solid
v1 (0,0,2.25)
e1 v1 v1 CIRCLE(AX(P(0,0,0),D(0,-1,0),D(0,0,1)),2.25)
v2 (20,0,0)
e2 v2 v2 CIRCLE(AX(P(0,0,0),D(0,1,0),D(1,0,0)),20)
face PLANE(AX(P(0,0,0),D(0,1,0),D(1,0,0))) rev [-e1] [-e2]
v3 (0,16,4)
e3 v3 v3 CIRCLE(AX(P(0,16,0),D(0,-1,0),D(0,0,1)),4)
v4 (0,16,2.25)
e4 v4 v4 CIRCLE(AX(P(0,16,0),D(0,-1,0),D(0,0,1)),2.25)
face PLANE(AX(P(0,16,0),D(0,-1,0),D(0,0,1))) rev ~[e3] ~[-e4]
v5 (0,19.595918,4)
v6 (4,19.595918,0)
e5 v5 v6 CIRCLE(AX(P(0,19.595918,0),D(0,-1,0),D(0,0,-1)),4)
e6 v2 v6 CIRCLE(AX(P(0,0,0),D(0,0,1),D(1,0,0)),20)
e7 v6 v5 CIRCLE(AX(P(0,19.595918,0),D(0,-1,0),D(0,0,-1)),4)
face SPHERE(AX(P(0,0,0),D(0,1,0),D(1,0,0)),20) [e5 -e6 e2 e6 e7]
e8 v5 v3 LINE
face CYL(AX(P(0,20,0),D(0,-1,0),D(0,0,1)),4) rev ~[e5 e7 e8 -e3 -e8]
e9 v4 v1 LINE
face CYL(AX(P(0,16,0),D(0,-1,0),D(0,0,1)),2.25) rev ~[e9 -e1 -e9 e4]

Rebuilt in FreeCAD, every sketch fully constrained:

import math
import FreeCAD as App
import Part
import Sketcher
Q = App.Units.Quantity

doc = App.newDocument("Part")
params = doc.addObject("Spreadsheet::Sheet", "Params")
for row, (alias, value) in enumerate([
    ("sketch1_radius", "20 mm"),
    ("revolution_angle", "360 deg"),
    ("sketch2_diameter", "4.5 mm"),
    ("hole_diameter", "4.5 mm"),
    ("hole_cbore_diameter", "8 mm"),
    ("hole_cbore_depth", "4 mm"),
], start=1):
    params.set(f"A{row}", alias)
    params.set(f"B{row}", "=" + value)
    params.setAlias(f"B{row}", alias)

body = doc.addObject("PartDesign::Body", "Body")

# Sketch on XY plane
sketch1 = body.newObject("Sketcher::SketchObject", "Sketch")
sketch1.AttachmentSupport = (doc.getObject("XY_Plane"), [""])
sketch1.MapMode = "FlatFace"
sketch1.addGeometry([
    Part.LineSegment(App.Vector(0, 20, 0), App.Vector(0, 0, 0)),
    Part.LineSegment(App.Vector(0, 0, 0), App.Vector(20, 0, 0)),
    Part.ArcOfCircle(Part.Circle(App.Vector(0, 0, 0), App.Vector(0, 0, 1), 20), math.radians(0), math.radians(90)),
], False)
sketch1.addConstraint([
    Sketcher.Constraint("Coincident", 0, 2, 1, 1),
    Sketcher.Constraint("Coincident", 1, 2, 2, 1),
    Sketcher.Constraint("Coincident", 2, 2, 0, 1),
    Sketcher.Constraint("Vertical", 0),
    Sketcher.Constraint("Horizontal", 1),
    Sketcher.Constraint("Coincident", 2, 3, -1, 1),
    Sketcher.Constraint("Coincident", 0, 2, -1, 1),
    Sketcher.Constraint("Radius", 2, Q("20 mm")),
])
sketch1.setExpression("Constraints[7]", "Params.sketch1_radius")
revolution = body.newObject("PartDesign::Revolution", "Revolution")
revolution.Profile = sketch1
revolution.ReferenceAxis = (sketch1, ["V_Axis"])
revolution.setExpression("Angle", "Params.revolution_angle")

# Sketch on XZ plane
sketch2 = body.newObject("Sketcher::SketchObject", "Sketch001")
sketch2.AttachmentSupport = (doc.getObject("XZ_Plane"), [""])
sketch2.MapMode = "FlatFace"
sketch2.AttachmentOffset = App.Placement(App.Vector(0, 0, -20), App.Rotation())
sketch2.addGeometry(Part.Circle(App.Vector(0, 0, 0), App.Vector(0, 0, 1), 2.25), False)
sketch2.addConstraint([
    Sketcher.Constraint("Coincident", 0, 3, -1, 1),
    Sketcher.Constraint("Diameter", 0, Q("4.5 mm")),
])
sketch2.setExpression("Constraints[1]", "Params.sketch2_diameter")
doc.recompute()
hole = body.newObject("PartDesign::Hole", "Hole")
hole.Profile = sketch2
hole.ThreadType = "None"
hole.setExpression("Diameter", "Params.hole_diameter")
hole.DepthType = "ThroughAll"
hole.HoleCutType = "Counterbore"
hole.setExpression("HoleCutDiameter", "Params.hole_cbore_diameter")
hole.setExpression("HoleCutDepth", "Params.hole_cbore_depth")
hole.Reversed = True

doc.recompute()
